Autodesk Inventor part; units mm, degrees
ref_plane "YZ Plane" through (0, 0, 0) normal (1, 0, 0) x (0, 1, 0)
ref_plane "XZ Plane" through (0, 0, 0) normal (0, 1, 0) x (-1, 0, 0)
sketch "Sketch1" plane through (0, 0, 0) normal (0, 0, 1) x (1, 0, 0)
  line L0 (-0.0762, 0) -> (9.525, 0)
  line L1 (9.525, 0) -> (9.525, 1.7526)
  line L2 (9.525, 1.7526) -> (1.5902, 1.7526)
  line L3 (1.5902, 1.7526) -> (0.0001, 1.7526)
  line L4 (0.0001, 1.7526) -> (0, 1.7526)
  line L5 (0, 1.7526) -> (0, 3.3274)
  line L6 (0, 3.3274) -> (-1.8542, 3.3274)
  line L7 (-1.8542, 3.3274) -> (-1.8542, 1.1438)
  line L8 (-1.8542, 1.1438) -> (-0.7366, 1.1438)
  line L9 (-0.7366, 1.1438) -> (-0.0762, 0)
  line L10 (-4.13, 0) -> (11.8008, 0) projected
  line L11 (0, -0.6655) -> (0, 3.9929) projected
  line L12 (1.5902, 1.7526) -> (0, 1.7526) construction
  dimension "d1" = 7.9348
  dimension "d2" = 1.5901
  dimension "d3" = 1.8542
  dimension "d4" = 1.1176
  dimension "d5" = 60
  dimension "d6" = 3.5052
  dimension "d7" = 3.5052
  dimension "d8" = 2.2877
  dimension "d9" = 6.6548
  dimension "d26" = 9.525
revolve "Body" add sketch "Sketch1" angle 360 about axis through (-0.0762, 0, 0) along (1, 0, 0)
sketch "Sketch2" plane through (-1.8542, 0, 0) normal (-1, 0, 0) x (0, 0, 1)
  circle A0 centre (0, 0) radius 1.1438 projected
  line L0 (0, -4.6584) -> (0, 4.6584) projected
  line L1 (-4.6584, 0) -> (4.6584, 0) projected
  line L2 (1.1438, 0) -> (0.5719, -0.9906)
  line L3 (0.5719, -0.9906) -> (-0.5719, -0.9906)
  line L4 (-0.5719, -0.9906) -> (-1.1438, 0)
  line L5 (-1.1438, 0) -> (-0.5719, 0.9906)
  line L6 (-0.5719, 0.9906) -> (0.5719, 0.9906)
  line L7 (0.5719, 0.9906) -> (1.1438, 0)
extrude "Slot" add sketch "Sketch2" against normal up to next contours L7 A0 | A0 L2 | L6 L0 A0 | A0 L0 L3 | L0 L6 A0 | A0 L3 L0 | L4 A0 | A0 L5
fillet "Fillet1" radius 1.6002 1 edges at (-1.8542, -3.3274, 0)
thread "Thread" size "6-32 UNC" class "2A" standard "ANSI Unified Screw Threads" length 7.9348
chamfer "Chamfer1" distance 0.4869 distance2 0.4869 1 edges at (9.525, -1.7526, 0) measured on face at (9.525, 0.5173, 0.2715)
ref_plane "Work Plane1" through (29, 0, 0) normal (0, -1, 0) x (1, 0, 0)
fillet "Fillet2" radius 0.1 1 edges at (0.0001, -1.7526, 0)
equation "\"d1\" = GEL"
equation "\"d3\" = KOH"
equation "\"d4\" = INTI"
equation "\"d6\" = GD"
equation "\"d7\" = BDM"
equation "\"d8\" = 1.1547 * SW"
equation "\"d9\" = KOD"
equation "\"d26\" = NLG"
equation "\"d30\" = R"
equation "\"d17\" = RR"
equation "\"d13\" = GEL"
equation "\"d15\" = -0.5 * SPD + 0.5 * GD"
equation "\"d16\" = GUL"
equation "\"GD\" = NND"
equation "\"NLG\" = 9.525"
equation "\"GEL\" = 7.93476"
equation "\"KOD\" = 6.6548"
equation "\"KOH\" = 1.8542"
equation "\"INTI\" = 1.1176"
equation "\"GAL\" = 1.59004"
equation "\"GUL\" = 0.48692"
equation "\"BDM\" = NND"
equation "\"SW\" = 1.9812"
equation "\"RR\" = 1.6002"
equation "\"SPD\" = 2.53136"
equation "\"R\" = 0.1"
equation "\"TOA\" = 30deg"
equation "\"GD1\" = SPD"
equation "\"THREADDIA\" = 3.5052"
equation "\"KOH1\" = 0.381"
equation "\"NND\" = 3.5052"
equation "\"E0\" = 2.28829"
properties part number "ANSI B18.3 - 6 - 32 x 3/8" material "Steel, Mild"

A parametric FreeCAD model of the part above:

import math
import FreeCAD as App
import Part
import Sketcher
Q = App.Units.Quantity


def edges_at(feature, points):
    """Names of the edges that pass closest to the given points."""
    edges = feature.Shape.Edges
    near = lambda p: min(range(len(edges)), key=lambda i: edges[i].distToShape(Part.Vertex(*p))[0])
    return sorted({f"Edge{near(p) + 1}" for p in points})


def add_polygon(sketch, points):
    """Adds a closed chain of lines whose ends are joined by coincident constraints."""
    first, n = sketch.GeometryCount, len(points)
    for a, b in zip(points, points[1:] + points[:1]):
        sketch.addGeometry(Part.LineSegment(App.Vector(*a, 0), App.Vector(*b, 0)), False)
    for i in range(n):
        sketch.addConstraint(Sketcher.Constraint("Coincident", first + i, 2, first + (i + 1) % n, 1))

doc = App.newDocument("Part")
body = doc.addObject("PartDesign::Body", "Body")

sketch1 = body.newObject("Sketcher::SketchObject", "Sketch")
sketch1.AttachmentSupport = (doc.getObject("XY_Plane"), [""])
sketch1.MapMode = "FlatFace"
add_polygon(sketch1, [(-0.7, 1.1), (-0.1, 0), (9.5, 0), (9.5, 1.8), (0, 1.8), (0, 3.3), (-1.9, 3.3), (-1.9, 1.1)])
sketch1.addConstraint([
    Sketcher.Constraint("Horizontal", 1),
    Sketcher.Constraint("Vertical", 2),
    Sketcher.Constraint("Horizontal", 3),
    Sketcher.Constraint("Vertical", 4),
    Sketcher.Constraint("Horizontal", 5),
    Sketcher.Constraint("Vertical", 6),
    Sketcher.Constraint("Horizontal", 7),
    Sketcher.Constraint("PointOnObject", 0, 2, -1),
    Sketcher.Constraint("PointOnObject", 3, 2, -2),
    Sketcher.Constraint("DistanceX", 3, 2, 3, 1, Q("0.375 in")),
    Sketcher.Constraint("DistanceX", 5, 2, 5, 1, Q("0.073 in")),
    Sketcher.Constraint("DistanceX", 7, 1, 7, 2, Q("0.044 in")),
    Sketcher.Constraint("Angle", 0, Q("-59.999 deg")),
    Sketcher.Constraint("DistanceX", 1, 1, 1, 2, Q("0.378 in")),
    Sketcher.Constraint("DistanceY", 2, 1, 2, 2, Q("0.069 in")),
    Sketcher.Constraint("DistanceY", 4, 1, 4, 2, Q("0.062 in")),
])
revolution = body.newObject("PartDesign::Revolution", "Revolution")
revolution.Profile = sketch1
revolution.ReferenceAxis = (sketch1, ["H_Axis"])
revolution.Angle = 360

sketch2 = body.newObject("Sketcher::SketchObject", "Sketch001")
sketch2.AttachmentSupport = (doc.getObject("YZ_Plane"), [""])
sketch2.MapMode = "FlatFace"
sketch2.AttachmentOffset = App.Placement(App.Vector(0, 0, -0.073 * 25.4), App.Rotation())
sketch2.addGeometry([
    Part.LineSegment(App.Vector(1, 0.6, 0), App.Vector(0, 1.1, 0)),
    Part.ArcOfCircle(Part.Circle(App.Vector(0, 0, 0), App.Vector(0, 0, 1), 1.1), math.radians(30), math.radians(90)),
    Part.ArcOfCircle(Part.Circle(App.Vector(0, 0, 0), App.Vector(0, 0, 1), 1.1), math.radians(90), math.radians(150)),
    Part.LineSegment(App.Vector(0, 1.1, 0), App.Vector(-1, 0.6, 0)),
    Part.ArcOfCircle(Part.Circle(App.Vector(0, 0, 0), App.Vector(0, 0, 1), 1.1), math.radians(-30), math.radians(30)),
    Part.LineSegment(App.Vector(1, 0.6, 0), App.Vector(1, -0.6, 0)),
    Part.LineSegment(App.Vector(-1, 0.6, 0), App.Vector(-1, -0.6, 0)),
    Part.ArcOfCircle(Part.Circle(App.Vector(0, 0, 0), App.Vector(0, 0, 1), 1.1), math.radians(150), math.radians(210)),
    Part.LineSegment(App.Vector(-1, -0.6, 0), App.Vector(0, -1.1, 0)),
    Part.ArcOfCircle(Part.Circle(App.Vector(0, 0, 0), App.Vector(0, 0, 1), 1.1), math.radians(-150), math.radians(-90)),
    Part.ArcOfCircle(Part.Circle(App.Vector(0, 0, 0), App.Vector(0, 0, 1), 1.1), math.radians(-90), math.radians(-30)),
    Part.LineSegment(App.Vector(0, -1.1, 0), App.Vector(1, -0.6, 0)),
], False)
sketch2.addConstraint([
    Sketcher.Constraint("Coincident", 0, 1, 1, 1),
    Sketcher.Constraint("Coincident", 1, 2, 0, 2),
    Sketcher.Constraint("Coincident", 2, 1, 3, 1),
    Sketcher.Constraint("Coincident", 3, 2, 2, 2),
    Sketcher.Constraint("Coincident", 4, 1, 5, 2),
    Sketcher.Constraint("Coincident", 5, 1, 4, 2),
    Sketcher.Constraint("Coincident", 6, 1, 7, 1),
    Sketcher.Constraint("Coincident", 7, 2, 6, 2),
    Sketcher.Constraint("Coincident", 8, 1, 9, 1),
    Sketcher.Constraint("Coincident", 9, 2, 8, 2),
    Sketcher.Constraint("Coincident", 10, 1, 11, 1),
    Sketcher.Constraint("Coincident", 11, 2, 10, 2),
    Sketcher.Constraint("Vertical", 5),
    Sketcher.Constraint("Vertical", 6),
    Sketcher.Constraint("Coincident", 1, 3, -1, 1),
    Sketcher.Constraint("Coincident", 2, 3, -1, 1),
    Sketcher.Constraint("Coincident", 4, 3, -1, 1),
    Sketcher.Constraint("Coincident", 7, 3, -1, 1),
    Sketcher.Constraint("Coincident", 9, 3, -1, 1),
    Sketcher.Constraint("Coincident", 10, 3, -1, 1),
    Sketcher.Constraint("Coincident", 2, 1, 1, 2),
    Sketcher.Constraint("Coincident", 5, 1, 0, 1),
    Sketcher.Constraint("Coincident", 6, 1, 3, 2),
    Sketcher.Constraint("Coincident", 8, 1, 7, 2),
    Sketcher.Constraint("Coincident", 10, 1, 9, 2),
    Sketcher.Constraint("PointOnObject", 1, 2, -2),
    Sketcher.Constraint("PointOnObject", 9, 2, -2),
    Sketcher.Constraint("Parallel", 0, 8),
    Sketcher.Constraint("Parallel", 3, 11),
    Sketcher.Constraint("Angle", 0, Q("150.001 deg")),
    Sketcher.Constraint("Radius", 1, Q("1.1438 mm")),
])
pad1 = body.newObject("PartDesign::Pad", "Pad")
pad1.Profile = sketch2
pad1.Type = "UpToFirst"
doc.recompute()

fillet = body.newObject("PartDesign::Fillet", "Fillet")
fillet.Base = (pad1, edges_at(pad1, [(-1.854, -3.327, 0)]))
fillet.Radius = Q("0.063 in")
doc.recompute()

chamfer = body.newObject("PartDesign::Chamfer", "Chamfer")
chamfer.Base = (fillet, edges_at(fillet, [(9.525, -1.753, 0)]))
chamfer.ChamferType = "Two distances"
chamfer.Size = 0.4869
chamfer.Size2 = 0.4869
doc.recompute()

fillet2 = body.newObject("PartDesign::Fillet", "Fillet001")
fillet2.Base = (chamfer, edges_at(chamfer, [(0, -1.753, 0)]))
fillet2.Radius = 0.1

doc.recompute()
